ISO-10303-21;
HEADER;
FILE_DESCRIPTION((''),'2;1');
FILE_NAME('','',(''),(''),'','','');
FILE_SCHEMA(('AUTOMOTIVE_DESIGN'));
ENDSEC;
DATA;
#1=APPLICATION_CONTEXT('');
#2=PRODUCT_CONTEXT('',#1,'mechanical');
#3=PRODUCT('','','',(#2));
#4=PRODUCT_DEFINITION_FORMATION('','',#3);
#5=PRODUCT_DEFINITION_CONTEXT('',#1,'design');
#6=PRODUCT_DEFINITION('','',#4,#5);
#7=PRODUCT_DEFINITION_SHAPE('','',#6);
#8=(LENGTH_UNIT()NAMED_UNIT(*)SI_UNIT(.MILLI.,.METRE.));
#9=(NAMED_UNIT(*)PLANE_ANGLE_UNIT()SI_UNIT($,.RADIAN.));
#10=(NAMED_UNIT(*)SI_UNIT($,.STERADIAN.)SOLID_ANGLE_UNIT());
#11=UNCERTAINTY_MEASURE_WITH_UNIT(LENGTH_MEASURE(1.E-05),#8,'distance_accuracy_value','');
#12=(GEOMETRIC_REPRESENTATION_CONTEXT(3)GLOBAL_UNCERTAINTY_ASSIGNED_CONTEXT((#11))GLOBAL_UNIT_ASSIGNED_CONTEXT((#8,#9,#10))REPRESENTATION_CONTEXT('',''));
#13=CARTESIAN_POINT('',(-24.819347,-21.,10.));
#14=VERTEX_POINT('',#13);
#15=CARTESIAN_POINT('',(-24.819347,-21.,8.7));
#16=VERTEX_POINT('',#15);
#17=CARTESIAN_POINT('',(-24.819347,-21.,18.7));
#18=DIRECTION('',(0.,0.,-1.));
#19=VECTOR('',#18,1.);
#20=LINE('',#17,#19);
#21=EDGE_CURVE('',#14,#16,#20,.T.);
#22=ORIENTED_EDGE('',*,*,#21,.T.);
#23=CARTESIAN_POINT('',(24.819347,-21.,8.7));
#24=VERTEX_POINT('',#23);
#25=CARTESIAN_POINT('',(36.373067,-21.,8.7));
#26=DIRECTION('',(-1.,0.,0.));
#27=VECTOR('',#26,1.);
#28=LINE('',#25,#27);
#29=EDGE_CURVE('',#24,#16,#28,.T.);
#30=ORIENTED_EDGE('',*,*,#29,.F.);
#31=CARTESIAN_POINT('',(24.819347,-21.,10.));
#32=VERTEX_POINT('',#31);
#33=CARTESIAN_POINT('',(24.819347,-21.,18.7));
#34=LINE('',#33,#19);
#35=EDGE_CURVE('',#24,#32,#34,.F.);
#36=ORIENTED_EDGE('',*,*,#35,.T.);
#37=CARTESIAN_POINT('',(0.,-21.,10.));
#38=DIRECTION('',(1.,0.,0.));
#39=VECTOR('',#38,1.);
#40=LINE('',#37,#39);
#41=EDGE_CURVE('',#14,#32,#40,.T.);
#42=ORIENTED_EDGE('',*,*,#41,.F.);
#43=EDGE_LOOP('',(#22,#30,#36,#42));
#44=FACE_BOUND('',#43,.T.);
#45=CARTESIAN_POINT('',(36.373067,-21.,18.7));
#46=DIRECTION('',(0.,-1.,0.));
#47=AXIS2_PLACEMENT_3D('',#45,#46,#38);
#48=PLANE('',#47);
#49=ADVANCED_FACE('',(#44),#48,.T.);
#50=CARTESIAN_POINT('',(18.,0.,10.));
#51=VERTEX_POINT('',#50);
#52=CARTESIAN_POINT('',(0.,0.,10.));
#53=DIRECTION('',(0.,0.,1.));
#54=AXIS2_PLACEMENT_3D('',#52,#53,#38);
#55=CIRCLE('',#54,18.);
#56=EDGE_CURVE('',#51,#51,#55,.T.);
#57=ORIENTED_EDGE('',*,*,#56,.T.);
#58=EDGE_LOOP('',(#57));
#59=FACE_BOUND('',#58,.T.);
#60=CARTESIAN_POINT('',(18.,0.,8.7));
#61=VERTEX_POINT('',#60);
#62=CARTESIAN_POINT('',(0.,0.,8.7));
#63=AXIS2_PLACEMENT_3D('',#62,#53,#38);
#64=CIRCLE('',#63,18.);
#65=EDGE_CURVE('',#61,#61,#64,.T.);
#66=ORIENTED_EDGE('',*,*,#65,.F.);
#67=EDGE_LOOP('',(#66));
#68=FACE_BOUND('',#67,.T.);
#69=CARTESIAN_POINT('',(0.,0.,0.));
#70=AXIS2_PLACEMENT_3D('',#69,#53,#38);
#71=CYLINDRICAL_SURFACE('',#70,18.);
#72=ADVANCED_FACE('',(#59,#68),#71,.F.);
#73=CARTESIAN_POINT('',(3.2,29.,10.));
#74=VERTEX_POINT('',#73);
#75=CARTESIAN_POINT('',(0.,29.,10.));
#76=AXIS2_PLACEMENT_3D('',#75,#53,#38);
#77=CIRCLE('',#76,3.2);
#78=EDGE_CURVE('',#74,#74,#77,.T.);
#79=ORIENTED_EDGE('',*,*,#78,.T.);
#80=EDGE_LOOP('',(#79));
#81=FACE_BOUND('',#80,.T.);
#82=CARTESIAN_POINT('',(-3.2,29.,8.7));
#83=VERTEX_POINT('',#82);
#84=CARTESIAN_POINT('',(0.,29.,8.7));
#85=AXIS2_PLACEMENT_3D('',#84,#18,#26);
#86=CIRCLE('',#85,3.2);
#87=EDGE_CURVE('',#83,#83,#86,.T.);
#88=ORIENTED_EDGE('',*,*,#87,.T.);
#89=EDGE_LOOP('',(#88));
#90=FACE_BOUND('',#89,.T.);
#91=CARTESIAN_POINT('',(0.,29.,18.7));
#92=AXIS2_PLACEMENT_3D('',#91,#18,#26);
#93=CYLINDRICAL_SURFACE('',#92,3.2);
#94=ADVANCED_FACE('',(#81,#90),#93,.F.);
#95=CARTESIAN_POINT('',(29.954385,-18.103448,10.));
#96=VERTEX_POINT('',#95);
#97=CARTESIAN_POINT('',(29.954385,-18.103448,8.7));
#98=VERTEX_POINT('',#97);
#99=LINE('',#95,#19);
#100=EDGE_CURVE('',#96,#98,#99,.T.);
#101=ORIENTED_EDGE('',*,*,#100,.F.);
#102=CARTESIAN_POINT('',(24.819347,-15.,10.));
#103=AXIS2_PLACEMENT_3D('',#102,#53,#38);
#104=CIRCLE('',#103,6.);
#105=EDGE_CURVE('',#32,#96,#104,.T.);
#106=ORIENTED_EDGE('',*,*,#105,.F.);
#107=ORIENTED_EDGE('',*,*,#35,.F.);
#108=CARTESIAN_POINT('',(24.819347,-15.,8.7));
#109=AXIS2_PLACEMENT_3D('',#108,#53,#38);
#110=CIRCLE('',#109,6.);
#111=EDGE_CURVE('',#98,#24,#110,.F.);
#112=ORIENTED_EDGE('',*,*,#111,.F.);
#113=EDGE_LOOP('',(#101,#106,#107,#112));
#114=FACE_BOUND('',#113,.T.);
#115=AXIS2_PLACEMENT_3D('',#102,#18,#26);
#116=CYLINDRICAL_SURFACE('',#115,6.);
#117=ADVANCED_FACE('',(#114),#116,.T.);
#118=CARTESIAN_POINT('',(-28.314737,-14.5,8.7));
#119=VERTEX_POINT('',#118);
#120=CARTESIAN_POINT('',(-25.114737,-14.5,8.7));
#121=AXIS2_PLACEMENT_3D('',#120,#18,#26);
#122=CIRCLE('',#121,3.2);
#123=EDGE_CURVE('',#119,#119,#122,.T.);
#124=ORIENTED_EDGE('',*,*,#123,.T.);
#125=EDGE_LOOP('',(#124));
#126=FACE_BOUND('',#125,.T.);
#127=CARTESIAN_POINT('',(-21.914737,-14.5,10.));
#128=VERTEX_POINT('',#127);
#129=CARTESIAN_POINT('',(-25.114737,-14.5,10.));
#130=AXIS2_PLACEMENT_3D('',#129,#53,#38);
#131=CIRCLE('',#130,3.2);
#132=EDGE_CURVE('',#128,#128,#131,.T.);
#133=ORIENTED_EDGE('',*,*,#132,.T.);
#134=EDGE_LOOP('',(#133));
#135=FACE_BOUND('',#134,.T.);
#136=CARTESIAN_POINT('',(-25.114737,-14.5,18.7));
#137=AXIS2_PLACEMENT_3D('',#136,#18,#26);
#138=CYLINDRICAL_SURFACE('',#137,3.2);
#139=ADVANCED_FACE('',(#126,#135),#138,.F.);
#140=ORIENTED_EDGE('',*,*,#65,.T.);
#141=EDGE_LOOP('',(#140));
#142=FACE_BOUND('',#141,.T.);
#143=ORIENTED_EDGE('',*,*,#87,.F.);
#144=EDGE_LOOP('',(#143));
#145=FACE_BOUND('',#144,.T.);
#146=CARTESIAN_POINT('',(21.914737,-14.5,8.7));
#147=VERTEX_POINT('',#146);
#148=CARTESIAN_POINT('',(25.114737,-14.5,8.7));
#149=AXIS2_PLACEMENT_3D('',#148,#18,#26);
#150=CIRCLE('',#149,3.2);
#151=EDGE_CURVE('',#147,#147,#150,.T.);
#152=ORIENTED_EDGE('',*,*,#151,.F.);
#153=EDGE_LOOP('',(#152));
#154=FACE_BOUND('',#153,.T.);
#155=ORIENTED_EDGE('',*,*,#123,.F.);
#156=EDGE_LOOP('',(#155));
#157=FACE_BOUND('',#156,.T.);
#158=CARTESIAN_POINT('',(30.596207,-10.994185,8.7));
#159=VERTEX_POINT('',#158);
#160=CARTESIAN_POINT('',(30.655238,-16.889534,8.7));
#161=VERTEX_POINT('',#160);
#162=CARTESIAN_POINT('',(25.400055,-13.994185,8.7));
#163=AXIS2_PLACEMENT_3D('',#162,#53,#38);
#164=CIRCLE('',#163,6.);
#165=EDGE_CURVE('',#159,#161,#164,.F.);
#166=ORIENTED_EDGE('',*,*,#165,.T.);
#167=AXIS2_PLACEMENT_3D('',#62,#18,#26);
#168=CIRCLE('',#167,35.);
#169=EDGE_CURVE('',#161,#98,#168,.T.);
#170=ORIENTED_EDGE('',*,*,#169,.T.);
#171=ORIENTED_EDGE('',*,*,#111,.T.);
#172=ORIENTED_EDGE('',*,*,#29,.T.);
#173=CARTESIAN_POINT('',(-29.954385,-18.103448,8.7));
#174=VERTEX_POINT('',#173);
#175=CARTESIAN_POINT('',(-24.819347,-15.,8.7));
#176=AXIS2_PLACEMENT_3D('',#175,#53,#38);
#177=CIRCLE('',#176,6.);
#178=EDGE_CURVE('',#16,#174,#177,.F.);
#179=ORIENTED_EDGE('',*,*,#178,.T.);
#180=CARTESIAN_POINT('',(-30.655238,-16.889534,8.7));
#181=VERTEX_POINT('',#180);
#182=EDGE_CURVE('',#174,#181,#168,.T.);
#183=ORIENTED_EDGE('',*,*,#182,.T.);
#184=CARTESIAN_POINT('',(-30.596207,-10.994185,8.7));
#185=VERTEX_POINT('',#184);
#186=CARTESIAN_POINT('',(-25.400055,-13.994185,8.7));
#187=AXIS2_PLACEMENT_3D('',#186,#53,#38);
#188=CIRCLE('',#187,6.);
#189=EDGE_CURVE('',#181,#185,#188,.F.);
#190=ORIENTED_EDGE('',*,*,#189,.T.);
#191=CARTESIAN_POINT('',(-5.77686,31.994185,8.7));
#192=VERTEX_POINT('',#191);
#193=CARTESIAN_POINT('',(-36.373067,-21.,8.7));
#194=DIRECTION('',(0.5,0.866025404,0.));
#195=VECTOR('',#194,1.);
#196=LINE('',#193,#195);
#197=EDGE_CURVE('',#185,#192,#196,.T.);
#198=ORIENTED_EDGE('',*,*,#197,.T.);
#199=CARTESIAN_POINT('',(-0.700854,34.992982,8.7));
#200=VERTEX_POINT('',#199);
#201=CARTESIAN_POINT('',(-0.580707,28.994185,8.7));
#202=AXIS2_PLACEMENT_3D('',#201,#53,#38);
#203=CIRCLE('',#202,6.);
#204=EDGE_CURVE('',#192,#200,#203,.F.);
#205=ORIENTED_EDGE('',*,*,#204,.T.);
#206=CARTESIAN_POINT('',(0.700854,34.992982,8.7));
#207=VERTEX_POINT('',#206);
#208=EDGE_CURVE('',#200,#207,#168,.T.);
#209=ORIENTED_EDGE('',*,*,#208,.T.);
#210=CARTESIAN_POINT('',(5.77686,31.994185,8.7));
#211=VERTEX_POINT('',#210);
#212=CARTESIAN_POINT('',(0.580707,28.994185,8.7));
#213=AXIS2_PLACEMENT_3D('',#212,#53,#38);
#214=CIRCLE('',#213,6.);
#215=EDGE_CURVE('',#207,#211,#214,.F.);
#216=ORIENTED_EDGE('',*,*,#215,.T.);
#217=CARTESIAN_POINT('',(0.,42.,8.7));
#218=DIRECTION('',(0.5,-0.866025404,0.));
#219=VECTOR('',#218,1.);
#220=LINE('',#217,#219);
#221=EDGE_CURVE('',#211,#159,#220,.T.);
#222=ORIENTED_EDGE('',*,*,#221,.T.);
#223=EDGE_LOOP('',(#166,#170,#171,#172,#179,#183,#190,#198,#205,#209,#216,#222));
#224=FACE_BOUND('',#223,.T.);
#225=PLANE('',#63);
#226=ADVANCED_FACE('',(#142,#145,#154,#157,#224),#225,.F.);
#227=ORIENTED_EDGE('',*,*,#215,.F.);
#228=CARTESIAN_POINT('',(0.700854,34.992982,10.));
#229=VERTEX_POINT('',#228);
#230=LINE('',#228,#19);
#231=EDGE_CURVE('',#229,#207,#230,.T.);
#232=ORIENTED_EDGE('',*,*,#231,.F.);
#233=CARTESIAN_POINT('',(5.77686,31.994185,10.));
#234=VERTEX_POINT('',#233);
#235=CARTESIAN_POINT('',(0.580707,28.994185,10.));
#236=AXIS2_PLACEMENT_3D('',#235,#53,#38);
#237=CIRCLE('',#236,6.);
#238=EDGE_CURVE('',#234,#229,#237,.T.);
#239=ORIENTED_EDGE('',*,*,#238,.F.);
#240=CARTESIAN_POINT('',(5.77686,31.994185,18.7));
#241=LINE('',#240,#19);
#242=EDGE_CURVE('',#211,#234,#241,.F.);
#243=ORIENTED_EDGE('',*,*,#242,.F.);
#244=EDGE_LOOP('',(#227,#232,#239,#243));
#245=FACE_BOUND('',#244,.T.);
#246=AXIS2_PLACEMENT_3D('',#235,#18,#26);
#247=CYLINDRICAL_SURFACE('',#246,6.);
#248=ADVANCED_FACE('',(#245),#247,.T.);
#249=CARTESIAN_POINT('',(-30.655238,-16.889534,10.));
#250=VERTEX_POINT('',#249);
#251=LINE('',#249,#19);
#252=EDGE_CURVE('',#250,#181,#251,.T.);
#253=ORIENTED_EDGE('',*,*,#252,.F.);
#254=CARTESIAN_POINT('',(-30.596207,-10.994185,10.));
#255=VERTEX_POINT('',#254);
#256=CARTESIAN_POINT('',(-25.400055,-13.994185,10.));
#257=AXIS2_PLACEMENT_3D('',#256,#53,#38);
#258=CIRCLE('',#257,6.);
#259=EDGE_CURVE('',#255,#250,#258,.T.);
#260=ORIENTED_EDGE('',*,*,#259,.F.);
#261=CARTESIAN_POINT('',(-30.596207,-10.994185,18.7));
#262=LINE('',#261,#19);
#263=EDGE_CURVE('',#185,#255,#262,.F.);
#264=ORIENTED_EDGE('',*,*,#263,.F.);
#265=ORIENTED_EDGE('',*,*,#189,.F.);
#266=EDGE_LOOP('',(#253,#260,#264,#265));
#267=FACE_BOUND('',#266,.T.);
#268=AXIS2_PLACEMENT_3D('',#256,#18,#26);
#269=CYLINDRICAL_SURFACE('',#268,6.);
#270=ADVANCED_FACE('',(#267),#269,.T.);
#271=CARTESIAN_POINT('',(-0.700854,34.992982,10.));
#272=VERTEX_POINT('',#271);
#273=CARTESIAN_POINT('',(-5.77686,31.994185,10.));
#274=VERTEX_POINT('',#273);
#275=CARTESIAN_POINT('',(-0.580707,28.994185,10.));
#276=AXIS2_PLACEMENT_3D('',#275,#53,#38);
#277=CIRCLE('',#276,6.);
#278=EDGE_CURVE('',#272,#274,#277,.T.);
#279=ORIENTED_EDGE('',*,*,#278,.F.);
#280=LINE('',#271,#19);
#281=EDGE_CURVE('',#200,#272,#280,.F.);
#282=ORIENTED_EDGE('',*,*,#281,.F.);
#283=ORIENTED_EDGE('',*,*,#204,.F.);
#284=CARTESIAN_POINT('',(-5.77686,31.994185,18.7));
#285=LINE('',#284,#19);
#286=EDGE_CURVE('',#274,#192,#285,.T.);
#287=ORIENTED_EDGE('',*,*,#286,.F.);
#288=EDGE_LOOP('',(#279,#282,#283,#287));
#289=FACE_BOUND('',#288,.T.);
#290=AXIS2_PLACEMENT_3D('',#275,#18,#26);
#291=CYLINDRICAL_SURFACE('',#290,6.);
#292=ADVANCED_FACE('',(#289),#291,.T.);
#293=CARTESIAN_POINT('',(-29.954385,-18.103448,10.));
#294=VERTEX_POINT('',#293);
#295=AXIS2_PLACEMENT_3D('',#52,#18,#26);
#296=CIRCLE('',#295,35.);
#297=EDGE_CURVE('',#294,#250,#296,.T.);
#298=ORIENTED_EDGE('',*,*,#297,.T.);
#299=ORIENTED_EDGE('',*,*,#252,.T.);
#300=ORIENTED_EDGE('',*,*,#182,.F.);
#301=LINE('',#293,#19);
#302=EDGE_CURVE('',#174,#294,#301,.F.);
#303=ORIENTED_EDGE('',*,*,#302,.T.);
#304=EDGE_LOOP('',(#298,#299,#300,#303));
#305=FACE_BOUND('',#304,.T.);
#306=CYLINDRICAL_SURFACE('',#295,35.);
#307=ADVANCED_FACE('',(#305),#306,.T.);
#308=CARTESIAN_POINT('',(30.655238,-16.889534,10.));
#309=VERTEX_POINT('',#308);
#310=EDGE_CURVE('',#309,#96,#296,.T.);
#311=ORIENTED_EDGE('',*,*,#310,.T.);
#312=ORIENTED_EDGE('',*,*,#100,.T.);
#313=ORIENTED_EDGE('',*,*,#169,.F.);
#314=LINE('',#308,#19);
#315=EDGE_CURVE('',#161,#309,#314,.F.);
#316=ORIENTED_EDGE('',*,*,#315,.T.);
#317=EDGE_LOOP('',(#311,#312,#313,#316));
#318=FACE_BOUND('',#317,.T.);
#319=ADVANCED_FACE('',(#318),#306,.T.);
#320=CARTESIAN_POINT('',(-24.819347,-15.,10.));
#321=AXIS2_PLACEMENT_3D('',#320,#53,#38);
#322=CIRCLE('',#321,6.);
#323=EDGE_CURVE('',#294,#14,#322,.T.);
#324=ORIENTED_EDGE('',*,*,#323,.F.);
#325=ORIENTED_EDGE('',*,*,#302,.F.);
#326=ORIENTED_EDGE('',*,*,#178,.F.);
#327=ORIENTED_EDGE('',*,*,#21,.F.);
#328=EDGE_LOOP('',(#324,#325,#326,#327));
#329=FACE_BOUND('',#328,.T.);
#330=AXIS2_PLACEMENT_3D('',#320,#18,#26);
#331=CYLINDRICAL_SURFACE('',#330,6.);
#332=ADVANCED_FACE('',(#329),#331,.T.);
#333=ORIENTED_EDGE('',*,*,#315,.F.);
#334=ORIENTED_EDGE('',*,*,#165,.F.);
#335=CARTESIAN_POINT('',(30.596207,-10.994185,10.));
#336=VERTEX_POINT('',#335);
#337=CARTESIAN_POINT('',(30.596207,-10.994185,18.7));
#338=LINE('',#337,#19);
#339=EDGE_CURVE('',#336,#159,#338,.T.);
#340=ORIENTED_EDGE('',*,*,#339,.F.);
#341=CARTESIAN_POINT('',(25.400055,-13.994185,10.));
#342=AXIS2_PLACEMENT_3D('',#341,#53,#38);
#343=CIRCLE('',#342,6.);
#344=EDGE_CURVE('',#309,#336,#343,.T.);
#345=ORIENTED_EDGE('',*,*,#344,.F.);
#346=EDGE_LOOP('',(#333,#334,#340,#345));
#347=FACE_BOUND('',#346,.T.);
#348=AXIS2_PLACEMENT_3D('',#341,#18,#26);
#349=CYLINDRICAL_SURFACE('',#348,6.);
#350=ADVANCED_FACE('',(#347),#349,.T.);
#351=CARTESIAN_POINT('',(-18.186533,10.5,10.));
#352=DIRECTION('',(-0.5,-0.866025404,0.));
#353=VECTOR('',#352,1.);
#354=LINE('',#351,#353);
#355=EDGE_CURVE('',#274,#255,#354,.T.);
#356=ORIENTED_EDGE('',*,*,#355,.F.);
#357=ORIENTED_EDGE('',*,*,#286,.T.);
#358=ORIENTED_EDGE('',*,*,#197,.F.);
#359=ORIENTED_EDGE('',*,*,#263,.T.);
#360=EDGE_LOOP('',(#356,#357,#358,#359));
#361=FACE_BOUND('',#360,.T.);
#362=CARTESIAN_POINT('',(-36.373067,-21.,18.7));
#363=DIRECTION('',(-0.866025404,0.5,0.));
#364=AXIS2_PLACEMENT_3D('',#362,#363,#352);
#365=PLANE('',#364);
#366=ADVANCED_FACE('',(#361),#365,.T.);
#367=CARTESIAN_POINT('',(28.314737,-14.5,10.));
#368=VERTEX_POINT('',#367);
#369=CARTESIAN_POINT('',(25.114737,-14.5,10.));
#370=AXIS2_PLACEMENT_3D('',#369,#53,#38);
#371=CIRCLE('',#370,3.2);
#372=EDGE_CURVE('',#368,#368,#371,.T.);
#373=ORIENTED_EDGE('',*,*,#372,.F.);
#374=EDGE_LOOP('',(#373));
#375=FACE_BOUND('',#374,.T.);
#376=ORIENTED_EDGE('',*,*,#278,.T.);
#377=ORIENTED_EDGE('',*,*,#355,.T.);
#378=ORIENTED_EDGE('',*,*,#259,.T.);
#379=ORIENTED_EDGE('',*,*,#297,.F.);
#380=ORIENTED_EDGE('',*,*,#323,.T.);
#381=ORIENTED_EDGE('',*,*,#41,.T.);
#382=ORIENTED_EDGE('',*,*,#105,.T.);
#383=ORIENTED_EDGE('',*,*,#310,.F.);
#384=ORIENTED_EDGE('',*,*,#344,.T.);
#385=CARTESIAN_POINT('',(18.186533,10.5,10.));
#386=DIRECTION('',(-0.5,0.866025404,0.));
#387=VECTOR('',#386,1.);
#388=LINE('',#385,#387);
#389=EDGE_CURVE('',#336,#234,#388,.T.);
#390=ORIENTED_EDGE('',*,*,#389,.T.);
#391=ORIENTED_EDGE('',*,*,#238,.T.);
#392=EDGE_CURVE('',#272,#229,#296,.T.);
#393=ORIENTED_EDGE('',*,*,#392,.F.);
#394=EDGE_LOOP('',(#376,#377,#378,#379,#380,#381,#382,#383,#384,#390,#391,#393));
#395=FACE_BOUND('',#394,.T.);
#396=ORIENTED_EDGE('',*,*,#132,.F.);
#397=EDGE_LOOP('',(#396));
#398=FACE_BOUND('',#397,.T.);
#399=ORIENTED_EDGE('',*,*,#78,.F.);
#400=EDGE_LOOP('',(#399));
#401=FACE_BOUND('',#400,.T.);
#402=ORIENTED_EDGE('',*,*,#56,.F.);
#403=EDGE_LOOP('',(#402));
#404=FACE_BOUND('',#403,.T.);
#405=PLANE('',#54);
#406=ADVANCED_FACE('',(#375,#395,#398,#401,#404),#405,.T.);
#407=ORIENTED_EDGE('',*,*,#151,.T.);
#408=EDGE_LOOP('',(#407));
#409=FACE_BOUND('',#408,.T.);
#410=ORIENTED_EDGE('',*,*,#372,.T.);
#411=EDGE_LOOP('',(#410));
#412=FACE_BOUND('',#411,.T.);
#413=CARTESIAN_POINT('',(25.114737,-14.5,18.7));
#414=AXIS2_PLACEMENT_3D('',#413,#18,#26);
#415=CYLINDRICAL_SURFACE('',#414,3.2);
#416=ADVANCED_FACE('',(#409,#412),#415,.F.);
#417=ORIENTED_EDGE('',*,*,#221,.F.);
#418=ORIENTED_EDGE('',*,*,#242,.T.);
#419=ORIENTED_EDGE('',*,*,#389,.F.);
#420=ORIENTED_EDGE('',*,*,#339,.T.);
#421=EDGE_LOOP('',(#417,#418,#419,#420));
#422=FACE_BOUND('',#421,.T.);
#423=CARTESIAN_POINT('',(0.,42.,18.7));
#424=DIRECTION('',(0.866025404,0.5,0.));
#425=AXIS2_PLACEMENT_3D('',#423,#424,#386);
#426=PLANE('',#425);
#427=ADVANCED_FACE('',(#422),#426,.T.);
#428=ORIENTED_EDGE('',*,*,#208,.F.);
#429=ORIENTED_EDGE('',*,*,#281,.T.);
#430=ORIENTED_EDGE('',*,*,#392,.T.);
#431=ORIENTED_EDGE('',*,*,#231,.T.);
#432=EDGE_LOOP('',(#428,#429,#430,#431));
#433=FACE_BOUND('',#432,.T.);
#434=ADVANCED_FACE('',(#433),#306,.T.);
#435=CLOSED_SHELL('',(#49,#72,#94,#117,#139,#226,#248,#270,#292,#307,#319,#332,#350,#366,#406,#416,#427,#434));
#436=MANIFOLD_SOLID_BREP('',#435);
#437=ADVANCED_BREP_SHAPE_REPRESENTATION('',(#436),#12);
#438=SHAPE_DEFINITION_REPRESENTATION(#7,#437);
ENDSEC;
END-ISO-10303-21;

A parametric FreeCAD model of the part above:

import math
import FreeCAD as App
import Part
import Sketcher
from FreeCAD import Vector
Q = App.Units.Quantity


def edges_at(feature, points):
    """Names of the edges that pass closest to the given points."""
    edges = feature.Shape.Edges
    near = lambda p: min(range(len(edges)), key=lambda i: edges[i].distToShape(Part.Vertex(*p))[0])
    return sorted({f"Edge{near(p) + 1}" for p in points})


def add_polygon(sketch, points):
    """Adds a closed chain of lines whose ends are joined by coincident constraints."""
    first, n = sketch.GeometryCount, len(points)
    for a, b in zip(points, points[1:] + points[:1]):
        sketch.addGeometry(Part.LineSegment(App.Vector(*a, 0), App.Vector(*b, 0)), False)
    for i in range(n):
        sketch.addConstraint(Sketcher.Constraint("Coincident", first + i, 2, first + (i + 1) % n, 1))

doc = App.newDocument("Part")
body = doc.addObject("PartDesign::Body", "Body")

# Sketch on XY plane
sketch1 = body.newObject("Sketcher::SketchObject", "Sketch")
sketch1.AttachmentSupport = (doc.getObject("XY_Plane"), [""])
sketch1.MapMode = "FlatFace"
sketch1.AttachmentOffset = App.Placement(Vector(0, 0, 10), App.Rotation())
sketch1.addGeometry([
    Part.Circle(Vector(0, 0, 0), Vector(0, 0, 1), 18),  # 0
    Part.ArcOfCircle(Part.Circle(Vector(0, 0, 0), Vector(0, 0, 1), 16.5), math.radians(-161), math.radians(-128)),  # 1
    Part.LineSegment(Vector(-15.6, -5.38, 0), Vector(-1.11, -0.68, 0)),  # 2
    Part.LineSegment(Vector(-1.11, -0.68, 0), Vector(-10.1, -13.05, 0)),  # 3
    Part.LineSegment(Vector(0.3, -1.26, 0), Vector(9.29, -13.64, 0)),  # 4
    Part.ArcOfCircle(Part.Circle(Vector(0, 0, 0), Vector(0, 0, 1), 16.5), math.radians(-89), math.radians(-56)),  # 5
    Part.LineSegment(Vector(0.3, -16.5, 0), Vector(0.3, -1.26, 0)),  # 6
    Part.ArcOfCircle(Part.Circle(Vector(0, 0, 0), Vector(0, 0, 1), 16.5), math.radians(-17), math.radians(16)),  # 7
    Part.LineSegment(Vector(15.78, -4.81, 0), Vector(1.29, -0.11, 0)),  # 8
    Part.LineSegment(Vector(1.29, -0.11, 0), Vector(15.84, 4.62, 0)),  # 9
    Part.LineSegment(Vector(0, 17, 0), Vector(0, 0.54, 0)),  # 10
    Part.ArcOfCircle(Part.Circle(Vector(0, 0, 0), Vector(0, 0, 1), 0.54), math.radians(54), math.radians(90)),  # 11
    Part.LineSegment(Vector(0.32, 0.44, 0), Vector(9.99, 13.75, 0)),  # 12
    Part.ArcOfCircle(Part.Circle(Vector(0, 0, 0), Vector(0, 0, 1), 17), math.radians(18), math.radians(54)),  # 13
    Part.LineSegment(Vector(16.17, 5.25, 0), Vector(0.51, 0.17, 0)),  # 14
    Part.ArcOfCircle(Part.Circle(Vector(0, 0, 0), Vector(0, 0, 1), 0.54), math.radians(-18), math.radians(18)),  # 15
    Part.LineSegment(Vector(0.51, -0.17, 0), Vector(16.17, -5.25, 0)),  # 16
    Part.ArcOfCircle(Part.Circle(Vector(0, 0, 0), Vector(0, 0, 1), 17), math.radians(-54), math.radians(-18)),  # 17
    Part.LineSegment(Vector(9.99, -13.75, 0), Vector(0.32, -0.44, 0)),  # 18
    Part.ArcOfCircle(Part.Circle(Vector(0, 0, 0), Vector(0, 0, 1), 0.54), math.radians(-90), math.radians(-54)),  # 19
    Part.LineSegment(Vector(0, -0.54, 0), Vector(0, -17, 0)),  # 20
    Part.ArcOfCircle(Part.Circle(Vector(0, 0, 0), Vector(0, 0, 1), 17), math.radians(-126), math.radians(-90)),  # 21
    Part.LineSegment(Vector(-9.99, -13.75, 0), Vector(-0.32, -0.44, 0)),  # 22
    Part.ArcOfCircle(Part.Circle(Vector(0, 0, 0), Vector(0, 0, 1), 0.54), math.radians(-162), math.radians(-126)),  # 23
    Part.LineSegment(Vector(-0.51, -0.17, 0), Vector(-16.17, -5.25, 0)),  # 24
    Part.ArcOfCircle(Part.Circle(Vector(0, 0, 0), Vector(0, 0, 1), 17), math.radians(162), math.radians(198)),  # 25
    Part.LineSegment(Vector(-16.17, 5.25, 0), Vector(-0.51, 0.17, 0)),  # 26
    Part.ArcOfCircle(Part.Circle(Vector(0, 0, 0), Vector(0, 0, 1), 0.54), math.radians(126), math.radians(162)),  # 27
    Part.LineSegment(Vector(-0.32, 0.44, 0), Vector(-9.99, 13.75, 0)),  # 28
    Part.ArcOfCircle(Part.Circle(Vector(0, 0, 0), Vector(0, 0, 1), 17), math.radians(90), math.radians(126)),  # 29
    Part.ArcOfCircle(Part.Circle(Vector(0, 0, 0), Vector(0, 0, 1), 16.5), math.radians(127), math.radians(160)),  # 30
    Part.LineSegment(Vector(-9.94, 13.17, 0), Vector(-0.99, 0.85, 0)),  # 31
    Part.LineSegment(Vector(-0.99, 0.85, 0), Vector(-15.53, 5.57, 0)),  # 32
    Part.LineSegment(Vector(9.45, 13.52, 0), Vector(0.5, 1.2, 0)),  # 33
    Part.LineSegment(Vector(0.5, 1.2, 0), Vector(0.5, 16.49, 0)),  # 34
    Part.ArcOfCircle(Part.Circle(Vector(0, 0, 0), Vector(0, 0, 1), 16.5), math.radians(55), math.radians(88)),  # 35
], False)
sketch1.addConstraint([
    Sketcher.Constraint("Coincident", 1, 1, 2, 1),
    Sketcher.Constraint("Coincident", 2, 2, 3, 1),
    Sketcher.Constraint("Coincident", 3, 2, 1, 2),
    Sketcher.Constraint("Coincident", 4, 2, 5, 2),
    Sketcher.Constraint("Coincident", 5, 1, 6, 1),
    Sketcher.Constraint("Coincident", 6, 2, 4, 1),
    Sketcher.Constraint("Coincident", 7, 1, 8, 1),
    Sketcher.Constraint("Coincident", 8, 2, 9, 1),
    Sketcher.Constraint("Coincident", 9, 2, 7, 2),
    Sketcher.Constraint("Coincident", 10, 2, 11, 2),
    Sketcher.Constraint("Coincident", 11, 1, 12, 1),
    Sketcher.Constraint("Coincident", 12, 2, 13, 2),
    Sketcher.Constraint("Coincident", 13, 1, 14, 1),
    Sketcher.Constraint("Coincident", 14, 2, 15, 2),
    Sketcher.Constraint("Coincident", 15, 1, 16, 1),
    Sketcher.Constraint("Coincident", 16, 2, 17, 2),
    Sketcher.Constraint("Coincident", 17, 1, 18, 1),
    Sketcher.Constraint("Coincident", 18, 2, 19, 2),
    Sketcher.Constraint("Coincident", 19, 1, 20, 1),
    Sketcher.Constraint("Coincident", 20, 2, 21, 2),
    Sketcher.Constraint("Coincident", 21, 1, 22, 1),
    Sketcher.Constraint("Coincident", 22, 2, 23, 2),
    Sketcher.Constraint("Coincident", 23, 1, 24, 1),
    Sketcher.Constraint("Coincident", 24, 2, 25, 2),
    Sketcher.Constraint("Coincident", 25, 1, 26, 1),
    Sketcher.Constraint("Coincident", 26, 2, 27, 2),
    Sketcher.Constraint("Coincident", 27, 1, 28, 1),
    Sketcher.Constraint("Coincident", 28, 2, 29, 2),
    Sketcher.Constraint("Coincident", 29, 1, 10, 1),
    Sketcher.Constraint("Coincident", 30, 1, 31, 1),
    Sketcher.Constraint("Coincident", 31, 2, 32, 1),
    Sketcher.Constraint("Coincident", 32, 2, 30, 2),
    Sketcher.Constraint("Coincident", 33, 2, 34, 1),
    Sketcher.Constraint("Coincident", 34, 2, 35, 2),
    Sketcher.Constraint("Coincident", 35, 1, 33, 1),
    Sketcher.Constraint("Vertical", 6),
    Sketcher.Constraint("Vertical", 10),
    Sketcher.Constraint("Vertical", 20),
    Sketcher.Constraint("Vertical", 34),
    Sketcher.Constraint("Coincident", 0, 3, -1, 1),
    Sketcher.Constraint("Coincident", 1, 3, -1, 1),
    Sketcher.Constraint("Coincident", 5, 3, -1, 1),
    Sketcher.Constraint("Coincident", 7, 3, -1, 1),
    Sketcher.Constraint("Coincident", 11, 3, -1, 1),
    Sketcher.Constraint("Coincident", 13, 3, -1, 1),
    Sketcher.Constraint("Coincident", 15, 3, -1, 1),
    Sketcher.Constraint("Coincident", 17, 3, -1, 1),
    Sketcher.Constraint("Coincident", 19, 3, -1, 1),
    Sketcher.Constraint("Coincident", 21, 3, -1, 1),
    Sketcher.Constraint("Coincident", 23, 3, -1, 1),
    Sketcher.Constraint("Coincident", 25, 3, -1, 1),
    Sketcher.Constraint("Coincident", 27, 3, -1, 1),
    Sketcher.Constraint("Coincident", 29, 3, -1, 1),
    Sketcher.Constraint("Coincident", 30, 3, -1, 1),
    Sketcher.Constraint("Coincident", 35, 3, -1, 1),
    Sketcher.Constraint("Equal", 1, 5),
    Sketcher.Constraint("Equal", 5, 7),
    Sketcher.Constraint("Equal", 11, 15),
    Sketcher.Constraint("Equal", 13, 17),
    Sketcher.Constraint("Equal", 15, 19),
    Sketcher.Constraint("Equal", 17, 21),
    Sketcher.Constraint("Equal", 19, 23),
    Sketcher.Constraint("Equal", 21, 25),
    Sketcher.Constraint("Equal", 23, 27),
    Sketcher.Constraint("Equal", 25, 29),
    Sketcher.Constraint("Equal", 7, 30),
    Sketcher.Constraint("Equal", 30, 35),
    Sketcher.Constraint("PointOnObject", 10, 2, -2),
    Sketcher.Constraint("PointOnObject", 19, 1, -2),
    Sketcher.Constraint("Parallel", 2, 9),
    Sketcher.Constraint("Parallel", 3, 12),
    Sketcher.Constraint("Parallel", 9, 14),
    Sketcher.Constraint("Parallel", 8, 16),
    Sketcher.Constraint("Parallel", 4, 18),
    Sketcher.Constraint("Parallel", 12, 22),
    Sketcher.Constraint("Parallel", 14, 24),
    Sketcher.Constraint("Parallel", 16, 26),
    Sketcher.Constraint("Parallel", 18, 28),
    Sketcher.Constraint("Parallel", 28, 31),
    Sketcher.Constraint("Parallel", 26, 32),
    Sketcher.Constraint("Parallel", 22, 33),
    Sketcher.Constraint("Horizontal", 17, 1, 21, 1),
    Sketcher.Constraint("Horizontal", 18, 2, 22, 2),
    Sketcher.Constraint("Horizontal", 15, 1, 23, 1),
    Sketcher.Constraint("Horizontal", 16, 2, 24, 2),
    Sketcher.Constraint("Horizontal", 13, 1, 25, 1),
    Sketcher.Constraint("Horizontal", 11, 1, 27, 1),
    Sketcher.Constraint("Vertical", 14, 2, 15, 1),
    Sketcher.Constraint("Vertical", 12, 2, 17, 1),
    Sketcher.Constraint("Equal", 3, 4),
    Sketcher.Constraint("Equal", 2, 8),
    Sketcher.Constraint("Equal", 4, 9),
    Sketcher.Constraint("Equal", 8, 31),
    Sketcher.Constraint("Equal", 9, 32),
    Sketcher.Constraint("Equal", 31, 33),
    Sketcher.Constraint("Diameter", 0, Q("36 mm")),
    Sketcher.Constraint("Radius", 13, Q("17 mm")),
    Sketcher.Constraint("Radius", 1, Q("16.5 mm")),
    Sketcher.Constraint("Angle", 2, Q("18 deg")),
    Sketcher.Constraint("Angle", 3, Q("-126 deg")),
    Sketcher.Constraint("DistanceX", -1, 1, 5, 1, Q("0.3 mm")),
    Sketcher.Constraint("DistanceX", -1, 1, 33, 2, Q("0.5 mm")),
    Sketcher.Constraint("DistanceY", 13, 1, 12, 2, Q("8.5 mm")),
    Sketcher.Constraint("Radius", 11, Q("0.53855 mm")),
    Sketcher.Constraint("DistanceY", 9, 2, 35, 1, Q("8.901999 mm")),
    Sketcher.Constraint("DistanceY", 34, 1, 34, 2, Q("15.293841 mm")),
    Sketcher.Constraint("DistanceY", 16, 2, 9, 2, Q("9.874199 mm")),
])
pad1 = body.newObject("PartDesign::Pad", "Pad")
pad1.Profile = sketch1
pad1.Length = 1.3
pad1.Reversed = True

# Sketch on XY plane
sketch2 = body.newObject("Sketcher::SketchObject", "Sketch001")
sketch2.AttachmentSupport = (doc.getObject("XY_Plane"), [""])
sketch2.MapMode = "FlatFace"
sketch2.AttachmentOffset = App.Placement(Vector(0, 0, 10), App.Rotation())
sketch2.addGeometry([
    Part.LineSegment(Vector(0.32, 0.44, 0), Vector(9.99, 13.75, 0)),  # 0
    Part.ArcOfCircle(Part.Circle(Vector(0, 0, 0), Vector(0, 0, 1), 17), math.radians(18), math.radians(54)),  # 1
    Part.LineSegment(Vector(16.17, 5.25, 0), Vector(0.51, 0.17, 0)),  # 2
    Part.ArcOfCircle(Part.Circle(Vector(0, 0, 0), Vector(0, 0, 1), 0.54), math.radians(-18), math.radians(18)),  # 3
    Part.LineSegment(Vector(0.51, -0.17, 0), Vector(16.17, -5.25, 0)),  # 4
    Part.ArcOfCircle(Part.Circle(Vector(0, 0, 0), Vector(0, 0, 1), 17), math.radians(-54), math.radians(-18)),  # 5
    Part.LineSegment(Vector(9.99, -13.75, 0), Vector(0.32, -0.44, 0)),  # 6
    Part.ArcOfCircle(Part.Circle(Vector(0, 0, 0), Vector(0, 0, 1), 0.54), math.radians(-90), math.radians(-54)),  # 7
    Part.LineSegment(Vector(0, -0.54, 0), Vector(0, -17, 0)),  # 8
    Part.ArcOfCircle(Part.Circle(Vector(0, 0, 0), Vector(0, 0, 1), 17), math.radians(-126), math.radians(-90)),  # 9
    Part.LineSegment(Vector(-9.99, -13.75, 0), Vector(-0.32, -0.44, 0)),  # 10
    Part.ArcOfCircle(Part.Circle(Vector(0, 0, 0), Vector(0, 0, 1), 0.54), math.radians(-162), math.radians(-126)),  # 11
    Part.LineSegment(Vector(-0.51, -0.17, 0), Vector(-16.17, -5.25, 0)),  # 12
    Part.ArcOfCircle(Part.Circle(Vector(0, 0, 0), Vector(0, 0, 1), 17), math.radians(162), math.radians(198)),  # 13
    Part.LineSegment(Vector(-16.17, 5.25, 0), Vector(-0.51, 0.17, 0)),  # 14
    Part.ArcOfCircle(Part.Circle(Vector(0, 0, 0), Vector(0, 0, 1), 0.54), math.radians(126), math.radians(162)),  # 15
    Part.LineSegment(Vector(-0.32, 0.44, 0), Vector(-9.99, 13.75, 0)),  # 16
    Part.ArcOfCircle(Part.Circle(Vector(0, 0, 0), Vector(0, 0, 1), 17), math.radians(90), math.radians(126)),  # 17
    Part.LineSegment(Vector(0, 17, 0), Vector(0, 0.54, 0)),  # 18
    Part.ArcOfCircle(Part.Circle(Vector(0, 0, 0), Vector(0, 0, 1), 0.54), math.radians(54), math.radians(90)),  # 19
], False)
sketch2.addConstraint([
    Sketcher.Constraint("Coincident", 0, 2, 1, 2),
    Sketcher.Constraint("Coincident", 1, 1, 2, 1),
    Sketcher.Constraint("Coincident", 2, 2, 3, 2),
    Sketcher.Constraint("Coincident", 3, 1, 4, 1),
    Sketcher.Constraint("Coincident", 4, 2, 5, 2),
    Sketcher.Constraint("Coincident", 5, 1, 6, 1),
    Sketcher.Constraint("Coincident", 6, 2, 7, 2),
    Sketcher.Constraint("Coincident", 7, 1, 8, 1),
    Sketcher.Constraint("Coincident", 8, 2, 9, 2),
    Sketcher.Constraint("Coincident", 9, 1, 10, 1),
    Sketcher.Constraint("Coincident", 10, 2, 11, 2),
    Sketcher.Constraint("Coincident", 11, 1, 12, 1),
    Sketcher.Constraint("Coincident", 12, 2, 13, 2),
    Sketcher.Constraint("Coincident", 13, 1, 14, 1),
    Sketcher.Constraint("Coincident", 14, 2, 15, 2),
    Sketcher.Constraint("Coincident", 15, 1, 16, 1),
    Sketcher.Constraint("Coincident", 16, 2, 17, 2),
    Sketcher.Constraint("Coincident", 17, 1, 18, 1),
    Sketcher.Constraint("Coincident", 18, 2, 19, 2),
    Sketcher.Constraint("Coincident", 19, 1, 0, 1),
    Sketcher.Constraint("Vertical", 8),
    Sketcher.Constraint("Vertical", 18),
    Sketcher.Constraint("Coincident", 1, 3, -1, 1),
    Sketcher.Constraint("Coincident", 3, 3, -1, 1),
    Sketcher.Constraint("Coincident", 5, 3, -1, 1),
    Sketcher.Constraint("Coincident", 7, 3, -1, 1),
    Sketcher.Constraint("Coincident", 9, 3, -1, 1),
    Sketcher.Constraint("Coincident", 11, 3, -1, 1),
    Sketcher.Constraint("Coincident", 13, 3, -1, 1),
    Sketcher.Constraint("Coincident", 15, 3, -1, 1),
    Sketcher.Constraint("Coincident", 17, 3, -1, 1),
    Sketcher.Constraint("Coincident", 19, 3, -1, 1),
    Sketcher.Constraint("Equal", 1, 5),
    Sketcher.Constraint("Equal", 3, 7),
    Sketcher.Constraint("Equal", 5, 9),
    Sketcher.Constraint("Equal", 7, 11),
    Sketcher.Constraint("Equal", 9, 13),
    Sketcher.Constraint("Equal", 11, 15),
    Sketcher.Constraint("Equal", 13, 17),
    Sketcher.Constraint("Equal", 15, 19),
    Sketcher.Constraint("PointOnObject", 7, 1, -2),
    Sketcher.Constraint("PointOnObject", 17, 1, -2),
    Sketcher.Constraint("Parallel", 0, 10),
    Sketcher.Constraint("Parallel", 2, 12),
    Sketcher.Constraint("Parallel", 4, 14),
    Sketcher.Constraint("Parallel", 6, 16),
    Sketcher.Constraint("Horizontal", 5, 1, 9, 1),
    Sketcher.Constraint("Horizontal", 6, 2, 10, 2),
    Sketcher.Constraint("Horizontal", 3, 1, 11, 1),
    Sketcher.Constraint("Horizontal", 4, 2, 12, 2),
    Sketcher.Constraint("Horizontal", 1, 1, 13, 1),
    Sketcher.Constraint("Horizontal", 0, 2, 16, 2),
    Sketcher.Constraint("Vertical", 2, 2, 3, 1),
    Sketcher.Constraint("Vertical", 0, 2, 5, 1),
    Sketcher.Constraint("Radius", 1, Q("17 mm")),
    Sketcher.Constraint("Angle", 0, Q("54 deg")),
    Sketcher.Constraint("Angle", 2, Q("-162 deg")),
    Sketcher.Constraint("DistanceY", 1, 1, 0, 2, Q("8.5 mm")),
    Sketcher.Constraint("Radius", 3, Q("0.53855 mm")),
    Sketcher.Constraint("DistanceX", 9, 1, 6, 2, Q("10.308901 mm")),
])
pad2 = body.newObject("PartDesign::Pad", "Pad001")
pad2.Profile = sketch2
pad2.Length = 1.3
pad2.Reversed = True

# Sketch on XY plane
sketch3 = body.newObject("Sketcher::SketchObject", "Sketch002")
sketch3.AttachmentSupport = (doc.getObject("XY_Plane"), [""])
sketch3.MapMode = "FlatFace"
sketch3.AttachmentOffset = App.Placement(Vector(0, 0, 8.7), App.Rotation())
sketch3.addGeometry(Part.Circle(Vector(0, 0, 0), Vector(0, 0, 1), 0.7), False)
sketch3.addConstraint([
    Sketcher.Constraint("Coincident", 0, 3, -1, 1),
    Sketcher.Constraint("Diameter", 0, Q("1.4 mm")),
])
pad3 = body.newObject("PartDesign::Pad", "Pad002")
pad3.Profile = sketch3
pad3.Length = 1.3

# Sketch on XY plane
sketch4 = body.newObject("Sketcher::SketchObject", "Sketch003")
sketch4.AttachmentSupport = (doc.getObject("XY_Plane"), [""])
sketch4.MapMode = "FlatFace"
sketch4.AttachmentOffset = App.Placement(Vector(0, 0, 10), App.Rotation())
sketch4.addGeometry([
    Part.Circle(Vector(0, 0, 0), Vector(0, 0, 1), 35),
    Part.Circle(Vector(0, 0, 0), Vector(0, 0, 1), 18),
], False)
sketch4.addConstraint([
    Sketcher.Constraint("Coincident", 0, 3, -1, 1),
    Sketcher.Constraint("Coincident", 1, 3, -1, 1),
    Sketcher.Constraint("Diameter", 0, Q("70 mm")),
    Sketcher.Constraint("Diameter", 1, Q("36 mm")),
])
pad4 = body.newObject("PartDesign::Pad", "Pad003")
pad4.Profile = sketch4
pad4.Length = 1.3
pad4.Reversed = True

# Sketch on XY plane
sketch5 = body.newObject("Sketcher::SketchObject", "Sketch004")
sketch5.AttachmentSupport = (doc.getObject("XY_Plane"), [""])
sketch5.MapMode = "FlatFace"
sketch5.AttachmentOffset = App.Placement(Vector(0, 0, 10), App.Rotation())
sketch5.addGeometry([
    Part.Circle(Vector(0, 30, 0), Vector(0, 0, 1), 5),
    Part.Circle(Vector(-26, -15, 0), Vector(0, 0, 1), 5),
    Part.Circle(Vector(26, -15, 0), Vector(0, 0, 1), 5),
], False)
sketch5.addConstraint([
    Sketcher.Constraint("Equal", 0, 1),
    Sketcher.Constraint("Equal", 1, 2),
    Sketcher.Constraint("Symmetric", 1, 3, 2, 3, -2),
    Sketcher.Constraint("PointOnObject", 0, 3, -2),
    Sketcher.Constraint("Diameter", 0, Q("10 mm")),
    Sketcher.Constraint("DistanceY", -1, 1, 0, 3, Q("30 mm")),
    Sketcher.Constraint("DistanceY", 1, 3, -1, 1, Q("15 mm")),
    Sketcher.Constraint("DistanceX", 1, 3, -1, 1, Q("25.980762 mm")),
])
pad5 = body.newObject("PartDesign::Pad", "Pad004")
pad5.Profile = sketch5
pad5.Length = 1
pad5.Reversed = True

# Sketch on XY plane
sketch6 = body.newObject("Sketcher::SketchObject", "Sketch005")
sketch6.AttachmentSupport = (doc.getObject("XY_Plane"), [""])
sketch6.MapMode = "FlatFace"
sketch6.AttachmentOffset = App.Placement(Vector(0, 0, 8.7), App.Rotation())
sketch6.addGeometry(Part.Circle(Vector(0, 0, 0), Vector(0, 0, 1), 59), False)  # 0
add_polygon(sketch6, [(36, -21), (0, 42), (-36, -21)])  # lines 1-3
sketch6.addConstraint([
    Sketcher.Constraint("Horizontal", 3),
    Sketcher.Constraint("Coincident", 0, 3, -1, 1),
    Sketcher.Constraint("PointOnObject", 1, 2, -2),
    Sketcher.Constraint("Equal", 1, 2),
    Sketcher.Constraint("Angle", 1, Q("120 deg")),
    Sketcher.Constraint("DistanceY", -1, 1, 1, 2, Q("42 mm")),
    Sketcher.Constraint("DistanceY", 2, 2, -1, 1, Q("21 mm")),
    Sketcher.Constraint("Diameter", 0, Q("118.262731 mm")),
])
pocket1 = body.newObject("PartDesign::Pocket", "Pocket")
pocket1.Profile = sketch6
pocket1.Length = 10
pocket1.Reversed = True
doc.recompute()

fillet = body.newObject("PartDesign::Fillet", "Fillet")
fillet.Base = (pocket1, edges_at(pocket1, [
    (4.187, 34.749, 9.35),
    (32.187, -13.749, 9.35),
    (28, -21, 9.35),
    (-28, -21, 9.35),
    (-32.187, -13.749, 9.35),
    (-4.187, 34.749, 9.35),
]))
fillet.Radius = 6

# Sketch on XY plane
sketch7 = body.newObject("Sketcher::SketchObject", "Sketch006")
sketch7.AttachmentSupport = (doc.getObject("XY_Plane"), [""])
sketch7.MapMode = "FlatFace"
sketch7.AttachmentOffset = App.Placement(Vector(0, 0, 8.7), App.Rotation())
sketch7.addGeometry([
    Part.Circle(Vector(0, 29, 0), Vector(0, 0, 1), 3.2),
    Part.Circle(Vector(-25.1, -14.5, 0), Vector(0, 0, 1), 3.2),
    Part.Circle(Vector(25.1, -14.5, 0), Vector(0, 0, 1), 3.2),
], False)
sketch7.addConstraint([
    Sketcher.Constraint("Equal", 0, 1),
    Sketcher.Constraint("Equal", 1, 2),
    Sketcher.Constraint("Symmetric", 1, 3, 2, 3, -2),
    Sketcher.Constraint("PointOnObject", 0, 3, -2),
    Sketcher.Constraint("Diameter", 0, Q("6.4 mm")),
    Sketcher.Constraint("DistanceY", -1, 1, 0, 3, Q("29 mm")),
    Sketcher.Constraint("DistanceY", 1, 3, -1, 1, Q("14.5 mm")),
    Sketcher.Constraint("DistanceX", 1, 3, -1, 1, Q("25.114737 mm")),
])
pocket2 = body.newObject("PartDesign::Pocket", "Pocket001")
pocket2.Profile = sketch7
pocket2.Length = 10
pocket2.Reversed = True

# Sketch on XY plane
sketch8 = body.newObject("Sketcher::SketchObject", "Sketch007")
sketch8.AttachmentSupport = (doc.getObject("XY_Plane"), [""])
sketch8.MapMode = "FlatFace"
sketch8.AttachmentOffset = App.Placement(Vector(0, 0, 10), App.Rotation())
sketch8.addGeometry(Part.Circle(Vector(0, 0, 0), Vector(0, 0, 1), 18), False)
sketch8.addConstraint([
    Sketcher.Constraint("Coincident", 0, 3, -1, 1),
    Sketcher.Constraint("Diameter", 0, Q("36 mm")),
])
pocket3 = body.newObject("PartDesign::Pocket", "Pocket002")
pocket3.Profile = sketch8
pocket3.Length = 10

doc.recompute()
